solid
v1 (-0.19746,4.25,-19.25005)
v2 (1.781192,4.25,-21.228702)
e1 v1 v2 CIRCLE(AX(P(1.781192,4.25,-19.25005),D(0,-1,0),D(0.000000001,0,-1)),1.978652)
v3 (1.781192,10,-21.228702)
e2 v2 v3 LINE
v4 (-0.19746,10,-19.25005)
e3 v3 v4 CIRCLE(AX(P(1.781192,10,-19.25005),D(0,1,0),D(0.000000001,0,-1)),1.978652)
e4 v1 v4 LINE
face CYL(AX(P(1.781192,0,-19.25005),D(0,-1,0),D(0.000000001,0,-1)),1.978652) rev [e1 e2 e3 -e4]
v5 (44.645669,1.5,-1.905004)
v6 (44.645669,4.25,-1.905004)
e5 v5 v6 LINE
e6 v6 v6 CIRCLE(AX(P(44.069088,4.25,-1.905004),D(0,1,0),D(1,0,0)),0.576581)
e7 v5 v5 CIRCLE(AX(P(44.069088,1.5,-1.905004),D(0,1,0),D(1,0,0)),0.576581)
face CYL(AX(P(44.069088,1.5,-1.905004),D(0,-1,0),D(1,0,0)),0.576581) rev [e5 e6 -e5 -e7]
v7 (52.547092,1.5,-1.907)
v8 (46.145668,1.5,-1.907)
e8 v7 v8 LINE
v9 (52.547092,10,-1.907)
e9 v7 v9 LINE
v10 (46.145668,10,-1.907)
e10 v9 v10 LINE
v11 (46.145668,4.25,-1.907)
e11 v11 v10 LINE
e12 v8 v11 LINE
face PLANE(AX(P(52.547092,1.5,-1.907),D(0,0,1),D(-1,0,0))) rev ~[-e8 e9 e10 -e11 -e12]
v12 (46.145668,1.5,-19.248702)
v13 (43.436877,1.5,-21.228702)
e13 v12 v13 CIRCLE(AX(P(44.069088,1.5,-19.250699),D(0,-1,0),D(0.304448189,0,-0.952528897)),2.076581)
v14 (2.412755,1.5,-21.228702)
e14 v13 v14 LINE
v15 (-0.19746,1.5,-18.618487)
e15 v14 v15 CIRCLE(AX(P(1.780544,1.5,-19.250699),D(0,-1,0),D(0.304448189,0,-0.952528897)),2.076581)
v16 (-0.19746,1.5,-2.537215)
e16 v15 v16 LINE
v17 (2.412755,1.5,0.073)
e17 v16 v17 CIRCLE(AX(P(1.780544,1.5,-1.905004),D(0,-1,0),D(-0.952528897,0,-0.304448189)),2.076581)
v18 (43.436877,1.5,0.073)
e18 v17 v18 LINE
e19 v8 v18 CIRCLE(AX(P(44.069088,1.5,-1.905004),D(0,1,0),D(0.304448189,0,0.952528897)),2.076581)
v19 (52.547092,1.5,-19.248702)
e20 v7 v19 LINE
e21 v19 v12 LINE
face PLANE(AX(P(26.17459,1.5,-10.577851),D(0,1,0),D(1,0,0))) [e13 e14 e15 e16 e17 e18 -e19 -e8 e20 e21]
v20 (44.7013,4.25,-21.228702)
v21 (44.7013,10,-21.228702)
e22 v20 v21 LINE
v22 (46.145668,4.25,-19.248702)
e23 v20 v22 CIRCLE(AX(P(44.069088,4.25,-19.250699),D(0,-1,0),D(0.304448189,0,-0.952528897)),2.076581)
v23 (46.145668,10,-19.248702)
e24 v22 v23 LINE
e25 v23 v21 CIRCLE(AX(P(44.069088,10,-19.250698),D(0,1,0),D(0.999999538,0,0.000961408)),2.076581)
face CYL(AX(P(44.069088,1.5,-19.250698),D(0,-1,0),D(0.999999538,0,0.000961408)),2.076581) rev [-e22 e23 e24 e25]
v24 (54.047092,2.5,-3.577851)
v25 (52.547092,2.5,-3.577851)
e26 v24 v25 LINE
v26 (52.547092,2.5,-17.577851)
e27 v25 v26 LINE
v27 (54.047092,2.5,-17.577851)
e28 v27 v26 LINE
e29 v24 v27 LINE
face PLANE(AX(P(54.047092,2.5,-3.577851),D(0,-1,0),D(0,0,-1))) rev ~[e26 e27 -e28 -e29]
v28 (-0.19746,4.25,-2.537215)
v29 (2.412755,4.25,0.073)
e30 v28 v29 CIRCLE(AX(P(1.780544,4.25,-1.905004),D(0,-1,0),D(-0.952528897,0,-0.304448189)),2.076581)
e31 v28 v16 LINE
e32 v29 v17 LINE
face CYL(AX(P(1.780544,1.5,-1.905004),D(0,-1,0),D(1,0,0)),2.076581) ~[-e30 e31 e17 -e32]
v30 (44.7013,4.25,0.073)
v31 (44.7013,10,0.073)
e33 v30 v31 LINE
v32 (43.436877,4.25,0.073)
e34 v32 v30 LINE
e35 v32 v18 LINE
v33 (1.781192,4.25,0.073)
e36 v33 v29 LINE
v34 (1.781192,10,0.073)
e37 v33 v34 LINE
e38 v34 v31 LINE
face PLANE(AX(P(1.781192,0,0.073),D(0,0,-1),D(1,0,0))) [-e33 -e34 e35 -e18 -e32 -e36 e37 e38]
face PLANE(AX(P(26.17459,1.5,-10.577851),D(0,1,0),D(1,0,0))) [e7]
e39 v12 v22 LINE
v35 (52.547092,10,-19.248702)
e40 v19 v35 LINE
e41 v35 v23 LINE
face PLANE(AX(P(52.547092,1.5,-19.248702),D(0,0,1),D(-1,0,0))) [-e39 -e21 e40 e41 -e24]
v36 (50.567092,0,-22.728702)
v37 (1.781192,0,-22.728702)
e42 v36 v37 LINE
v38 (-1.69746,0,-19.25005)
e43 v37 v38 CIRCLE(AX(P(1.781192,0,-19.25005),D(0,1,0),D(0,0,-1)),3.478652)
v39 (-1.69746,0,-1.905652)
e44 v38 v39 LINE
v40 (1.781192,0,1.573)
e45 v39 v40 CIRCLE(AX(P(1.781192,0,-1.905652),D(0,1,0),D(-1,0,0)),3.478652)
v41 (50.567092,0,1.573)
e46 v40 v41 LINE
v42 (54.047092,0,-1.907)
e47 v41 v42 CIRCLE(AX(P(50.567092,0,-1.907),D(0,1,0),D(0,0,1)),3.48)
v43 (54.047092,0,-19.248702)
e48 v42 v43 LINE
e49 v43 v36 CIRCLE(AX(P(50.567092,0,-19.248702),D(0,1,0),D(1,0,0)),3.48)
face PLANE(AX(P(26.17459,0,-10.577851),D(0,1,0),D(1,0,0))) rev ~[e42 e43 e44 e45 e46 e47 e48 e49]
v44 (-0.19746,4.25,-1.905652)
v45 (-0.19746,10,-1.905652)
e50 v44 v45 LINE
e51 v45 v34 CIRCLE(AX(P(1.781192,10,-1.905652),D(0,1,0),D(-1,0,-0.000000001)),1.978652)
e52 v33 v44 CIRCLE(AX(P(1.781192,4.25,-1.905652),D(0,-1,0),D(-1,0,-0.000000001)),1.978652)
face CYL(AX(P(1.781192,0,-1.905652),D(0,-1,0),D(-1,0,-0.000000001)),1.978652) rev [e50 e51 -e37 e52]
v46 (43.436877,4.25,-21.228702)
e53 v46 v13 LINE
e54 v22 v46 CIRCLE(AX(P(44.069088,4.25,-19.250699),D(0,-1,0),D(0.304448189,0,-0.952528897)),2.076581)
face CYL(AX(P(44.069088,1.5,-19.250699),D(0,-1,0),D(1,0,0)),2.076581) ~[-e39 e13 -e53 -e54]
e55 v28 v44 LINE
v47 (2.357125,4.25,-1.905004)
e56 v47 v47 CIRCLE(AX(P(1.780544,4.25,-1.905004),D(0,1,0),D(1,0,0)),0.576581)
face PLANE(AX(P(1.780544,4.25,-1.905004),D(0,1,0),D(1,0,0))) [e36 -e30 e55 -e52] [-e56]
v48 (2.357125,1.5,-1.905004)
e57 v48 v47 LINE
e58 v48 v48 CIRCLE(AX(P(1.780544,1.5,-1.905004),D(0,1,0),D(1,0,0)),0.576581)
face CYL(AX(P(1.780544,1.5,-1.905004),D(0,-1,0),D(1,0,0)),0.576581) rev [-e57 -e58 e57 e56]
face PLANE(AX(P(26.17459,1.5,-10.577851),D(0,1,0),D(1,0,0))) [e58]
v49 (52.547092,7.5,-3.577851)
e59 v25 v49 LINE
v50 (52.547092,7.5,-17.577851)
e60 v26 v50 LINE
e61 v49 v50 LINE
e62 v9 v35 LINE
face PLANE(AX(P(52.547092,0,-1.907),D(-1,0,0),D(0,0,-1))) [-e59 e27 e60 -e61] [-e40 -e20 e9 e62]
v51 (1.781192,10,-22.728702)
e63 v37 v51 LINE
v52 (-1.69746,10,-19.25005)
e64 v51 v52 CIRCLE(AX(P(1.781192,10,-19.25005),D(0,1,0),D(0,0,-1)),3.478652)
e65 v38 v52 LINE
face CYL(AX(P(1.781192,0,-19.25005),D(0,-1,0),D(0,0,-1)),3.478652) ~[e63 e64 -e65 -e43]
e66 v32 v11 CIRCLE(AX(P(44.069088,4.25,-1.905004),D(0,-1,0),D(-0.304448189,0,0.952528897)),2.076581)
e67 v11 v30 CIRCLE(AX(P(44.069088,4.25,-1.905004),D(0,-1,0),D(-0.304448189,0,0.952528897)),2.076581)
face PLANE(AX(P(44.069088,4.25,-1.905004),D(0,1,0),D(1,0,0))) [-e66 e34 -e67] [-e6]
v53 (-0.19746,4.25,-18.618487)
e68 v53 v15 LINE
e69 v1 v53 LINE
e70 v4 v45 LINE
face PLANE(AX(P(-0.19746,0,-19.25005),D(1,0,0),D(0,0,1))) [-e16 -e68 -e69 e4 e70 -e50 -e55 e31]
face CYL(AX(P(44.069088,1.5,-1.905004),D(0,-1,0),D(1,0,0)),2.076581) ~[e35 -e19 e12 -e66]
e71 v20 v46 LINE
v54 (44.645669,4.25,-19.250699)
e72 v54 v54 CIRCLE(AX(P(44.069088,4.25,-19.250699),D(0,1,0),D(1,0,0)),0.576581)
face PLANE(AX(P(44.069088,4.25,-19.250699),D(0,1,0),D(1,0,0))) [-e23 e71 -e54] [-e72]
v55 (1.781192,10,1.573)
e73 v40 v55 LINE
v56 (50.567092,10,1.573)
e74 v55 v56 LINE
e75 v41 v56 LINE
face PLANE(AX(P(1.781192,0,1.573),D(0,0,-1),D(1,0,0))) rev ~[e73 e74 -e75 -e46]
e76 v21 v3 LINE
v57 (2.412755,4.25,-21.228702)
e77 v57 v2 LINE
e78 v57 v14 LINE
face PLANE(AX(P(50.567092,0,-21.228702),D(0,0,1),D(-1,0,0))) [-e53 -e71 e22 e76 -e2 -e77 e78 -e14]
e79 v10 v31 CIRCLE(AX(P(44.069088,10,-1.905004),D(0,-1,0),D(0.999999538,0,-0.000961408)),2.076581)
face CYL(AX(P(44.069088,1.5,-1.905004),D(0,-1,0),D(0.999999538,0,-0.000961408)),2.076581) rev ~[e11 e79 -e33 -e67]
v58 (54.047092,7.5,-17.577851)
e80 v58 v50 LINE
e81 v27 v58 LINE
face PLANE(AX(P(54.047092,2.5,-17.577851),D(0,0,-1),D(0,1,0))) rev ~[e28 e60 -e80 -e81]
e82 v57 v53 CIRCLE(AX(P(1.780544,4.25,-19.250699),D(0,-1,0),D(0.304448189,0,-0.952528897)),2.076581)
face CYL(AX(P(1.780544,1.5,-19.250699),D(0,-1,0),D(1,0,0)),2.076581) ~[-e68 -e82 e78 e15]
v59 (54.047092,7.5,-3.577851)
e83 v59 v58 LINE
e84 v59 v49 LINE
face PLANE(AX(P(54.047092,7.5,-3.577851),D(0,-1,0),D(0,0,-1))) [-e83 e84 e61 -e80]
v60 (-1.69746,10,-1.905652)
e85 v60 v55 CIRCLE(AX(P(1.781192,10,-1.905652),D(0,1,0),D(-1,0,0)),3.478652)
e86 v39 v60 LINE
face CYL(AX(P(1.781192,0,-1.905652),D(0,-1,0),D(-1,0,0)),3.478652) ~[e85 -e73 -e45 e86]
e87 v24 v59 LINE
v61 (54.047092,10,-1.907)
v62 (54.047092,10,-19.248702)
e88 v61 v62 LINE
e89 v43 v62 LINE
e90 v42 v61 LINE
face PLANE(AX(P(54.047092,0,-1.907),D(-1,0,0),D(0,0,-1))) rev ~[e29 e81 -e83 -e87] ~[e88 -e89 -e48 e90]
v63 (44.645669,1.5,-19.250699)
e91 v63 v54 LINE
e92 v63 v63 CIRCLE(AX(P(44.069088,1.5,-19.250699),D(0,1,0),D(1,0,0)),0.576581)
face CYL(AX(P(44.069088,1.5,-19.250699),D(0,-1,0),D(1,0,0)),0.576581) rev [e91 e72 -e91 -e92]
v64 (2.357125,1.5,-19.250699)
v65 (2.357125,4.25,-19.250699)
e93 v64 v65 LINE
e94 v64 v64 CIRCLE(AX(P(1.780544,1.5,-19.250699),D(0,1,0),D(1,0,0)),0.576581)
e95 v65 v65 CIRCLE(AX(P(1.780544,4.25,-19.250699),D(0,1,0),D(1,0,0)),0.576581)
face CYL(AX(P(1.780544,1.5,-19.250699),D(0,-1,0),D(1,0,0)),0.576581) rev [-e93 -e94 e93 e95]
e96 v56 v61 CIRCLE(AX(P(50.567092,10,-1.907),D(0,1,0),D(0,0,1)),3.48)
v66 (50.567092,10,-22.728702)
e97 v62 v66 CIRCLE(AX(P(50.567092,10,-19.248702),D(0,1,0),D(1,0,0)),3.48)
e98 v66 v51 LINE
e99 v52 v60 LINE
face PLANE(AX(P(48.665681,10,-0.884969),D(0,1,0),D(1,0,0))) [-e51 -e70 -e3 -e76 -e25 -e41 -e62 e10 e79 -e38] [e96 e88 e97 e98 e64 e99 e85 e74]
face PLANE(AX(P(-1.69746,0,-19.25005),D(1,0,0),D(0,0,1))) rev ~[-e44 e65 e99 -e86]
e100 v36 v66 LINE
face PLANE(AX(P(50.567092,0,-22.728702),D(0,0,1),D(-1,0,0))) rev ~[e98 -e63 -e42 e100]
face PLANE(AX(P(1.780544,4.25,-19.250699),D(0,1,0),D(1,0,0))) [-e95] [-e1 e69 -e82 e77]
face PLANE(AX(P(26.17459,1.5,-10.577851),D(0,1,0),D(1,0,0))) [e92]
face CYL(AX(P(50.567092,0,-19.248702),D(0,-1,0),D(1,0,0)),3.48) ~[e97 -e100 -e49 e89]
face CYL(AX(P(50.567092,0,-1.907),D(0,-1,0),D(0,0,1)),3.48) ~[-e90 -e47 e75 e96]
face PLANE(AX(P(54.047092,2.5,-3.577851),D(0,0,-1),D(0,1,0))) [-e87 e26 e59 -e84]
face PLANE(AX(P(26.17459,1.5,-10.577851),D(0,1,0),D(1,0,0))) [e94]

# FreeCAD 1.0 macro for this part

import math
import FreeCAD as App
import Part
import Sketcher
Q = App.Units.Quantity


def add_polygon(sketch, points):
    """Adds a closed chain of lines whose ends are joined by coincident constraints."""
    first, n = sketch.GeometryCount, len(points)
    for a, b in zip(points, points[1:] + points[:1]):
        sketch.addGeometry(Part.LineSegment(App.Vector(*a, 0), App.Vector(*b, 0)), False)
    for i in range(n):
        sketch.addConstraint(Sketcher.Constraint("Coincident", first + i, 2, first + (i + 1) % n, 1))

doc = App.newDocument("Part")
params = doc.addObject("Spreadsheet::Sheet", "Params")
for row, (alias, value) in enumerate([
    ("sketch1_radius", "3.48 mm"),
    ("sketch1_radius2", "1.98 mm"),
    ("pad1_length", "10 mm"),
    ("sketch2_radius", "1.98 mm"),
    ("pad2_length", "1.5 mm"),
    ("sketch3_width", "5 mm"),
    ("sketch3_height", "14 mm"),
    ("pad3_length", "2.75 mm"),
    ("sketch5_radius", "1.98 mm"),
    ("pad4_length", "8.5 mm"),
], start=1):
    params.set(f"A{row}", alias)
    params.set(f"B{row}", "=" + value)
    params.setAlias(f"B{row}", alias)

body = doc.addObject("PartDesign::Body", "Body")

# Sketch on XZ plane
sketch1 = body.newObject("Sketcher::SketchObject", "Sketch")
sketch1.AttachmentSupport = (doc.getObject("XZ_Plane"), [""])
sketch1.MapMode = "FlatFace"
sketch1.addGeometry([
    Part.LineSegment(App.Vector(50.6, -22.7, 0), App.Vector(1.8, -22.7, 0)),  # 0
    Part.ArcOfCircle(Part.Circle(App.Vector(1.8, -19.3, 0), App.Vector(0, 0, 1), 3.5), math.radians(-180), math.radians(-90)),  # 1
    Part.LineSegment(App.Vector(-1.7, -19.3, 0), App.Vector(-1.7, -1.9, 0)),  # 2
    Part.ArcOfCircle(Part.Circle(App.Vector(1.8, -1.9, 0), App.Vector(0, 0, 1), 3.5), math.radians(90), math.radians(180)),  # 3
    Part.LineSegment(App.Vector(1.8, 1.6, 0), App.Vector(50.6, 1.6, 0)),  # 4
    Part.ArcOfCircle(Part.Circle(App.Vector(50.6, -1.9, 0), App.Vector(0, 0, 1), 3.5), math.radians(0), math.radians(90)),  # 5
    Part.LineSegment(App.Vector(54, -1.9, 0), App.Vector(54, -19.2, 0)),  # 6
    Part.ArcOfCircle(Part.Circle(App.Vector(50.6, -19.2, 0), App.Vector(0, 0, 1), 3.5), math.radians(-90), math.radians(0)),  # 7
    Part.LineSegment(App.Vector(1.8, -21.2, 0), App.Vector(50.6, -21.2, 0)),  # 8
    Part.ArcOfCircle(Part.Circle(App.Vector(50.6, -19.2, 0), App.Vector(0, 0, 1), 2), math.radians(-90), math.radians(0)),  # 9
    Part.LineSegment(App.Vector(52.5, -19.2, 0), App.Vector(52.5, -1.9, 0)),  # 10
    Part.ArcOfCircle(Part.Circle(App.Vector(50.6, -1.9, 0), App.Vector(0, 0, 1), 2), math.radians(0), math.radians(90)),  # 11
    Part.LineSegment(App.Vector(50.6, 0.1, 0), App.Vector(1.8, 0.1, 0)),  # 12
    Part.ArcOfCircle(Part.Circle(App.Vector(1.8, -1.9, 0), App.Vector(0, 0, 1), 2), math.radians(90), math.radians(180)),  # 13
    Part.LineSegment(App.Vector(-0.2, -1.9, 0), App.Vector(-0.2, -19.3, 0)),  # 14
    Part.ArcOfCircle(Part.Circle(App.Vector(1.8, -19.3, 0), App.Vector(0, 0, 1), 2), math.radians(180), math.radians(270)),  # 15
], False)
sketch1.addConstraint([
    Sketcher.Constraint("Tangent", 0, 2, 1, 2),
    Sketcher.Constraint("Tangent", 1, 1, 2, 1),
    Sketcher.Constraint("Tangent", 2, 2, 3, 2),
    Sketcher.Constraint("Tangent", 3, 1, 4, 1),
    Sketcher.Constraint("Tangent", 4, 2, 5, 2),
    Sketcher.Constraint("Tangent", 5, 1, 6, 1),
    Sketcher.Constraint("Tangent", 6, 2, 7, 2),
    Sketcher.Constraint("Tangent", 7, 1, 0, 1),
    Sketcher.Constraint("Tangent", 8, 2, 9, 1),
    Sketcher.Constraint("Tangent", 9, 2, 10, 1),
    Sketcher.Constraint("Tangent", 10, 2, 11, 1),
    Sketcher.Constraint("Tangent", 11, 2, 12, 1),
    Sketcher.Constraint("Tangent", 12, 2, 13, 1),
    Sketcher.Constraint("Tangent", 13, 2, 14, 1),
    Sketcher.Constraint("Tangent", 14, 2, 15, 1),
    Sketcher.Constraint("Tangent", 15, 2, 8, 1),
    Sketcher.Constraint("Horizontal", 0),
    Sketcher.Constraint("Vertical", 2),
    Sketcher.Constraint("Horizontal", 4),
    Sketcher.Constraint("Vertical", 6),
    Sketcher.Constraint("Horizontal", 8),
    Sketcher.Constraint("Vertical", 10),
    Sketcher.Constraint("Horizontal", 12),
    Sketcher.Constraint("Vertical", 14),
    Sketcher.Constraint("Coincident", 9, 3, 7, 3),
    Sketcher.Constraint("Coincident", 11, 3, 5, 3),
    Sketcher.Constraint("Coincident", 13, 3, 3, 3),
    Sketcher.Constraint("Equal", 1, 3),
    Sketcher.Constraint("Equal", 5, 7),
    Sketcher.Constraint("Equal", 13, 15),
    Sketcher.Constraint("Radius", 5, Q("3.48 mm")),
    Sketcher.Constraint("Radius", 9, Q("1.98 mm")),
    Sketcher.Constraint("DistanceX", 0, 2, 0, 1, Q("48.7859 mm")),
    Sketcher.Constraint("DistanceY", 6, 2, 6, 1, Q("17.341702 mm")),
    Sketcher.Constraint("DistanceY", 5, 3, -1, 1, Q("1.907 mm")),
    Sketcher.Constraint("Radius", 1, Q("3.478652 mm")),
    Sketcher.Constraint("DistanceX", -1, 1, 5, 3, Q("50.567092 mm")),
])
sketch1.setExpression("Constraints[30]", "Params.sketch1_radius")
sketch1.setExpression("Constraints[31]", "Params.sketch1_radius2")
pad1 = body.newObject("PartDesign::Pad", "Pad")
pad1.Profile = sketch1
pad1.setExpression("Length", "Params.pad1_length")
pad1.Reversed = True

# Sketch on XZ plane
sketch2 = body.newObject("Sketcher::SketchObject", "Sketch001")
sketch2.AttachmentSupport = (doc.getObject("XZ_Plane"), [""])
sketch2.MapMode = "FlatFace"
sketch2.addGeometry([
    Part.LineSegment(App.Vector(50.6, -21.2, 0), App.Vector(1.8, -21.2, 0)),  # 0
    Part.ArcOfCircle(Part.Circle(App.Vector(1.8, -19.3, 0), App.Vector(0, 0, 1), 2), math.radians(180), math.radians(270)),  # 1
    Part.LineSegment(App.Vector(-0.2, -19.3, 0), App.Vector(-0.2, -1.9, 0)),  # 2
    Part.ArcOfCircle(Part.Circle(App.Vector(1.8, -1.9, 0), App.Vector(0, 0, 1), 2), math.radians(90), math.radians(180)),  # 3
    Part.LineSegment(App.Vector(1.8, 0.1, 0), App.Vector(50.6, 0.1, 0)),  # 4
    Part.ArcOfCircle(Part.Circle(App.Vector(50.6, -1.9, 0), App.Vector(0, 0, 1), 2), math.radians(0), math.radians(90)),  # 5
    Part.LineSegment(App.Vector(52.5, -1.9, 0), App.Vector(52.5, -19.2, 0)),  # 6
    Part.ArcOfCircle(Part.Circle(App.Vector(50.6, -19.2, 0), App.Vector(0, 0, 1), 2), math.radians(-90), math.radians(0)),  # 7
], False)
sketch2.addConstraint([
    Sketcher.Constraint("Tangent", 0, 2, 1, 2),
    Sketcher.Constraint("Tangent", 1, 1, 2, 1),
    Sketcher.Constraint("Tangent", 2, 2, 3, 2),
    Sketcher.Constraint("Tangent", 3, 1, 4, 1),
    Sketcher.Constraint("Tangent", 4, 2, 5, 2),
    Sketcher.Constraint("Tangent", 5, 1, 6, 1),
    Sketcher.Constraint("Tangent", 6, 2, 7, 2),
    Sketcher.Constraint("Tangent", 7, 1, 0, 1),
    Sketcher.Constraint("Horizontal", 0),
    Sketcher.Constraint("Vertical", 2),
    Sketcher.Constraint("Horizontal", 4),
    Sketcher.Constraint("Vertical", 6),
    Sketcher.Constraint("Equal", 1, 3),
    Sketcher.Constraint("Equal", 5, 7),
    Sketcher.Constraint("Radius", 5, Q("1.98 mm")),
    Sketcher.Constraint("DistanceX", 0, 2, 0, 1, Q("48.7859 mm")),
    Sketcher.Constraint("DistanceY", 6, 2, 6, 1, Q("17.341702 mm")),
    Sketcher.Constraint("DistanceY", 5, 3, -1, 1, Q("1.907 mm")),
    Sketcher.Constraint("Radius", 1, Q("1.978652 mm")),
    Sketcher.Constraint("DistanceX", -1, 1, 5, 3, Q("50.567092 mm")),
])
sketch2.setExpression("Constraints[14]", "Params.sketch2_radius")
pad2 = body.newObject("PartDesign::Pad", "Pad001")
pad2.Profile = sketch2
pad2.setExpression("Length", "Params.pad2_length")
pad2.Reversed = True

# Sketch on YZ plane
sketch3 = body.newObject("Sketcher::SketchObject", "Sketch002")
sketch3.AttachmentSupport = (doc.getObject("YZ_Plane"), [""])
sketch3.MapMode = "FlatFace"
sketch3.AttachmentOffset = App.Placement(App.Vector(0, 0, 54.047092), App.Rotation())
add_polygon(sketch3, [(8, -4), (2, -4), (2, -18), (8, -18)])  # lines 0-3
sketch3.addConstraint([
    Sketcher.Constraint("Horizontal", 0),
    Sketcher.Constraint("Vertical", 1),
    Sketcher.Constraint("Horizontal", 2),
    Sketcher.Constraint("Vertical", 3),
    Sketcher.Constraint("DistanceX", 0, 2, 0, 1, Q("5 mm")),
    Sketcher.Constraint("DistanceY", 1, 2, 1, 1, Q("14 mm")),
    Sketcher.Constraint("DistanceX", -1, 1, 0, 2, Q("2.5 mm")),
    Sketcher.Constraint("DistanceY", 0, 2, -1, 1, Q("3.577851 mm")),
])
sketch3.setExpression("Constraints[8]", "Params.sketch3_width")
sketch3.setExpression("Constraints[9]", "Params.sketch3_height")
pocket1 = body.newObject("PartDesign::Pocket", "Pocket")
pocket1.Profile = sketch3
pocket1.Type = "UpToFirst"

# Sketch on XZ plane
sketch4 = body.newObject("Sketcher::SketchObject", "Sketch003")
sketch4.AttachmentSupport = (doc.getObject("XZ_Plane"), [""])
sketch4.MapMode = "FlatFace"
sketch4.AttachmentOffset = App.Placement(App.Vector(0, 0, -1.5), App.Rotation())
sketch4.addGeometry([
    Part.Circle(App.Vector(44.1, -1.9, 0), App.Vector(0, 0, 1), 2.1),  # 0
    Part.Circle(App.Vector(44.1, -1.9, 0), App.Vector(0, 0, 1), 0.6),  # 1
    Part.Circle(App.Vector(44.1, -19.3, 0), App.Vector(0, 0, 1), 2.1),  # 2
    Part.Circle(App.Vector(44.1, -19.3, 0), App.Vector(0, 0, 1), 0.6),  # 3
    Part.Circle(App.Vector(1.8, -19.3, 0), App.Vector(0, 0, 1), 2.1),  # 4
    Part.Circle(App.Vector(1.8, -19.3, 0), App.Vector(0, 0, 1), 0.6),  # 5
    Part.Circle(App.Vector(1.8, -1.9, 0), App.Vector(0, 0, 1), 2.1),  # 6
    Part.Circle(App.Vector(1.8, -1.9, 0), App.Vector(0, 0, 1), 0.6),  # 7
], False)
sketch4.addConstraint([
    Sketcher.Constraint("Coincident", 1, 3, 0, 3),
    Sketcher.Constraint("Coincident", 3, 3, 2, 3),
    Sketcher.Constraint("Coincident", 5, 3, 4, 3),
    Sketcher.Constraint("Coincident", 7, 3, 6, 3),
    Sketcher.Constraint("Equal", 0, 2),
    Sketcher.Constraint("Equal", 1, 3),
    Sketcher.Constraint("Equal", 2, 4),
    Sketcher.Constraint("Equal", 3, 5),
    Sketcher.Constraint("Equal", 4, 6),
    Sketcher.Constraint("Equal", 5, 7),
    Sketcher.Constraint("Horizontal", 3, 3, 4, 3),
    Sketcher.Constraint("Horizontal", 1, 3, 6, 3),
    Sketcher.Constraint("Vertical", 1, 3, 2, 3),
    Sketcher.Constraint("Vertical", 5, 3, 6, 3),
    Sketcher.Constraint("Diameter", 0, Q("4.153162 mm")),
    Sketcher.Constraint("Diameter", 1, Q("1.153162 mm")),
    Sketcher.Constraint("DistanceY", 2, 3, -1, 1, Q("19.250699 mm")),
    Sketcher.Constraint("DistanceX", -1, 1, 0, 3, Q("44.069088 mm")),
    Sketcher.Constraint("DistanceY", 0, 3, -1, 1, Q("1.905004 mm")),
    Sketcher.Constraint("DistanceX", -1, 1, 4, 3, Q("1.780544 mm")),
])
pad3 = body.newObject("PartDesign::Pad", "Pad002")
pad3.Profile = sketch4
pad3.setExpression("Length", "Params.pad3_length")
pad3.Reversed = True

# Sketch on XZ plane
sketch5 = body.newObject("Sketcher::SketchObject", "Sketch004")
sketch5.AttachmentSupport = (doc.getObject("XZ_Plane"), [""])
sketch5.MapMode = "FlatFace"
sketch5.AttachmentOffset = App.Placement(App.Vector(0, 0, -1.5), App.Rotation())
sketch5.addGeometry([
    Part.LineSegment(App.Vector(44.7, 0.1, 0), App.Vector(50.6, 0.1, 0)),  # 0
    Part.ArcOfCircle(Part.Circle(App.Vector(50.6, -1.9, 0), App.Vector(0, 0, 1), 2), math.radians(0), math.radians(90)),  # 1
    Part.LineSegment(App.Vector(52.5, -1.9, 0), App.Vector(46.1, -1.9, 0)),  # 2
    Part.ArcOfCircle(Part.Circle(App.Vector(44.1, -1.9, 0), App.Vector(0, 0, 1), 2.1), math.radians(0), math.radians(72)),  # 3
    Part.LineSegment(App.Vector(50.6, -21.2, 0), App.Vector(44.7, -21.2, 0)),  # 4
    Part.ArcOfCircle(Part.Circle(App.Vector(44.1, -19.3, 0), App.Vector(0, 0, 1), 2.1), math.radians(-72), math.radians(0)),  # 5
    Part.LineSegment(App.Vector(46.1, -19.2, 0), App.Vector(52.5, -19.2, 0)),  # 6
    Part.ArcOfCircle(Part.Circle(App.Vector(50.6, -19.2, 0), App.Vector(0, 0, 1), 2), math.radians(-90), math.radians(0)),  # 7
], False)
sketch5.addConstraint([
    Sketcher.Constraint("Tangent", 0, 2, 1, 2),
    Sketcher.Constraint("Coincident", 1, 1, 2, 1),
    Sketcher.Constraint("Coincident", 2, 2, 3, 1),
    Sketcher.Constraint("Coincident", 3, 2, 0, 1),
    Sketcher.Constraint("Coincident", 4, 2, 5, 1),
    Sketcher.Constraint("Coincident", 5, 2, 6, 1),
    Sketcher.Constraint("Coincident", 6, 2, 7, 2),
    Sketcher.Constraint("Tangent", 7, 1, 4, 1),
    Sketcher.Constraint("Horizontal", 0),
    Sketcher.Constraint("Horizontal", 2),
    Sketcher.Constraint("Horizontal", 4),
    Sketcher.Constraint("Horizontal", 6),
    Sketcher.Constraint("Equal", 3, 5),
    Sketcher.Constraint("Equal", 1, 7),
    Sketcher.Constraint("Horizontal", 7, 3, 5, 2),
    Sketcher.Constraint("Vertical", 3, 3, 5, 3),
    Sketcher.Constraint("Vertical", 1, 3, 7, 3),
    Sketcher.Constraint("Vertical", 3, 2, 4, 2),
    Sketcher.Constraint("Radius", 1, Q("1.98 mm")),
    Sketcher.Constraint("Radius", 3, Q("2.076581 mm")),
    Sketcher.Constraint("DistanceY", 1, 1, 0, 2, Q("1.98 mm")),
    Sketcher.Constraint("DistanceY", 1, 3, -1, 1, Q("1.907 mm")),
    Sketcher.Constraint("DistanceY", 5, 3, -1, 1, Q("19.250698 mm")),
    Sketcher.Constraint("DistanceX", -1, 1, 3, 2, Q("44.7013 mm")),
    Sketcher.Constraint("DistanceY", 7, 3, 1, 3, Q("17.341702 mm")),
    Sketcher.Constraint("DistanceX", 0, 1, 0, 2, Q("5.865792 mm")),
])
sketch5.setExpression("Constraints[18]", "Params.sketch5_radius")
pad4 = body.newObject("PartDesign::Pad", "Pad003")
pad4.Profile = sketch5
pad4.setExpression("Length", "Params.pad4_length")
pad4.Reversed = True

doc.recompute()
